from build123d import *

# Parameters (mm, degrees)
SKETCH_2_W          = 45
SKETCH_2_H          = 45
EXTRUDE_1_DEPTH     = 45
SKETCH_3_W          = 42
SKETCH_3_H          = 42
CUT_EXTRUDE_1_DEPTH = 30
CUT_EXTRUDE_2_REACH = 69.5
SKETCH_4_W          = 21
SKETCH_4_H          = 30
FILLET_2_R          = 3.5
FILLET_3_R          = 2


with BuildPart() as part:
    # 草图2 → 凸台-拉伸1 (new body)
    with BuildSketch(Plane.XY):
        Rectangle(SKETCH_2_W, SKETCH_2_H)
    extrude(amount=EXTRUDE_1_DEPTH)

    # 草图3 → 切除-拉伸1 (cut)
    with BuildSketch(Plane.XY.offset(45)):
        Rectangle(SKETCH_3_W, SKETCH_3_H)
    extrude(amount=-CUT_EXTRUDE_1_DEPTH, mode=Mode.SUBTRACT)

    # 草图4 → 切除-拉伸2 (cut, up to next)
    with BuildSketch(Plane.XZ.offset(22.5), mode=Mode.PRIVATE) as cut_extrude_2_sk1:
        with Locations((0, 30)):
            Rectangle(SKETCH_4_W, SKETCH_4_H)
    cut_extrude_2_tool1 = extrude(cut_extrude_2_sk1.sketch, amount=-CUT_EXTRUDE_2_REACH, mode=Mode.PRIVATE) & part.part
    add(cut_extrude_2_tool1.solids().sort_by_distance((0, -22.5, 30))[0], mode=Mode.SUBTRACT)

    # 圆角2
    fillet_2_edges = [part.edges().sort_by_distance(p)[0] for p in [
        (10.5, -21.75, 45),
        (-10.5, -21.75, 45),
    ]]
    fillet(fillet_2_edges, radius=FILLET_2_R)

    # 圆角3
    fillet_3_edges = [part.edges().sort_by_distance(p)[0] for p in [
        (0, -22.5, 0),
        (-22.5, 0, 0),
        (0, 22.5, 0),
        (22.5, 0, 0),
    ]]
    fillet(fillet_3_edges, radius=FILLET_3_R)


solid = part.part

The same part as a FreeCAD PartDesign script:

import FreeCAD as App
import Part
import Sketcher
from FreeCAD import Vector
Q = App.Units.Quantity


def edges_at(feature, points):
    """Names of the edges that pass closest to the given points."""
    edges = feature.Shape.Edges
    near = lambda p: min(range(len(edges)), key=lambda i: edges[i].distToShape(Part.Vertex(*p))[0])
    return sorted({f"Edge{near(p) + 1}" for p in points})

doc = App.newDocument("Part")
params = doc.addObject("Spreadsheet::Sheet", "Params")
for row, (alias, value) in enumerate([
    ("sketch1_width", "45 mm"),
    ("pad1_length", "45 mm"),
    ("sketch2_width", "42 mm"),
    ("pocket1_length", "30 mm"),
    ("sketch3_width", "21 mm"),
    ("sketch3_height", "30 mm"),
    ("fillet_radius", "3.5 mm"),
    ("fillet2_radius", "2 mm"),
], start=1):
    params.set(f"A{row}", alias)
    params.set(f"B{row}", "=" + value)
    params.setAlias(f"B{row}", alias)

body = doc.addObject("PartDesign::Body", "Body")

# Sketch on XY plane
sketch1 = doc.addObject("Sketcher::SketchObject", "Sketch")
body.addObject(sketch1)
sketch1.AttachmentSupport = (doc.XY_Plane, [""])
sketch1.MapMode = "FlatFace"
sketch1.addGeometry([
    Part.LineSegment(Vector(-22, 22, 0), Vector(-22, -22, 0)),
    Part.LineSegment(Vector(-22, -22, 0), Vector(22, -22, 0)),
    Part.LineSegment(Vector(22, -22, 0), Vector(22, 22, 0)),
    Part.LineSegment(Vector(22, 22, 0), Vector(-22, 22, 0)),
], False)
sketch1.addConstraint([
    Sketcher.Constraint("Coincident", 0, 2, 1, 1),
    Sketcher.Constraint("Coincident", 1, 2, 2, 1),
    Sketcher.Constraint("Coincident", 2, 2, 3, 1),
    Sketcher.Constraint("Coincident", 3, 2, 0, 1),
    Sketcher.Constraint("Vertical", 0),
    Sketcher.Constraint("Horizontal", 1),
    Sketcher.Constraint("Vertical", 2),
    Sketcher.Constraint("Horizontal", 3),
    Sketcher.Constraint("Symmetric", 0, 2, 2, 2, -1, 1),
    Sketcher.Constraint("Equal", 3, 0),
    Sketcher.Constraint("DistanceX", 1, 1, 1, 2, Q("45 mm")),
])
sketch1.setExpression("Constraints[10]", "Params.sketch1_width")
pad1 = doc.addObject("PartDesign::Pad", "Pad")
body.addObject(pad1)
pad1.Profile = sketch1
pad1.setExpression("Length", "Params.pad1_length")

# Sketch on XY plane
sketch2 = doc.addObject("Sketcher::SketchObject", "Sketch001")
body.addObject(sketch2)
sketch2.AttachmentSupport = (doc.XY_Plane, [""])
sketch2.MapMode = "FlatFace"
sketch2.AttachmentOffset = App.Placement(Vector(0, 0, 45), App.Rotation())
sketch2.addGeometry([
    Part.LineSegment(Vector(-21, 21, 0), Vector(-21, -21, 0)),
    Part.LineSegment(Vector(-21, -21, 0), Vector(21, -21, 0)),
    Part.LineSegment(Vector(21, -21, 0), Vector(21, 21, 0)),
    Part.LineSegment(Vector(21, 21, 0), Vector(-21, 21, 0)),
], False)
sketch2.addConstraint([
    Sketcher.Constraint("Coincident", 0, 2, 1, 1),
    Sketcher.Constraint("Coincident", 1, 2, 2, 1),
    Sketcher.Constraint("Coincident", 2, 2, 3, 1),
    Sketcher.Constraint("Coincident", 3, 2, 0, 1),
    Sketcher.Constraint("Vertical", 0),
    Sketcher.Constraint("Horizontal", 1),
    Sketcher.Constraint("Vertical", 2),
    Sketcher.Constraint("Horizontal", 3),
    Sketcher.Constraint("Symmetric", 0, 2, 2, 2, -1, 1),
    Sketcher.Constraint("Equal", 3, 0),
    Sketcher.Constraint("DistanceX", 1, 1, 1, 2, Q("42 mm")),
])
sketch2.setExpression("Constraints[10]", "Params.sketch2_width")
pocket1 = doc.addObject("PartDesign::Pocket", "Pocket")
body.addObject(pocket1)
pocket1.Profile = sketch2
pocket1.setExpression("Length", "Params.pocket1_length")

# Sketch on XZ plane
sketch3 = doc.addObject("Sketcher::SketchObject", "Sketch002")
body.addObject(sketch3)
sketch3.AttachmentSupport = (doc.XZ_Plane, [""])
sketch3.MapMode = "FlatFace"
sketch3.AttachmentOffset = App.Placement(Vector(0, 0, 22.5), App.Rotation())
sketch3.addGeometry([
    Part.LineSegment(Vector(-10, 45, 0), Vector(-10, 15, 0)),
    Part.LineSegment(Vector(-10, 15, 0), Vector(10, 15, 0)),
    Part.LineSegment(Vector(10, 15, 0), Vector(10, 45, 0)),
    Part.LineSegment(Vector(10, 45, 0), Vector(-10, 45, 0)),
], False)
sketch3.addConstraint([
    Sketcher.Constraint("Coincident", 0, 2, 1, 1),
    Sketcher.Constraint("Coincident", 1, 2, 2, 1),
    Sketcher.Constraint("Coincident", 2, 2, 3, 1),
    Sketcher.Constraint("Coincident", 3, 2, 0, 1),
    Sketcher.Constraint("Vertical", 0),
    Sketcher.Constraint("Horizontal", 1),
    Sketcher.Constraint("Vertical", 2),
    Sketcher.Constraint("Horizontal", 3),
    Sketcher.Constraint("DistanceX", 1, 1, 1, 2, Q("21 mm")),
    Sketcher.Constraint("DistanceY", 0, 2, 0, 1, Q("30 mm")),
    Sketcher.Constraint("DistanceY", -1, 1, 0, 2, Q("15 mm")),
    Sketcher.Constraint("DistanceX", 0, 2, -1, 1, Q("10.5 mm")),
])
sketch3.setExpression("Constraints[8]", "Params.sketch3_width")
sketch3.setExpression("Constraints[9]", "Params.sketch3_height")
pocket2 = doc.addObject("PartDesign::Pocket", "Pocket001")
body.addObject(pocket2)
pocket2.Profile = sketch3
pocket2.Type = "UpToFirst"
doc.recompute()

fillet = doc.addObject("PartDesign::Fillet", "Fillet")
body.addObject(fillet)
fillet.Base = (pocket2, edges_at(pocket2, [(10.5, -21.75, 45), (-10.5, -21.75, 45)]))
fillet.setExpression("Radius", "Params.fillet_radius")
doc.recompute()

fillet2 = doc.addObject("PartDesign::Fillet", "Fillet001")
body.addObject(fillet2)
fillet2.Base = (fillet, edges_at(fillet, [
    (0, -22.5, 0),
    (-22.5, 0, 0),
    (0, 22.5, 0),
    (22.5, 0, 0),
]))
fillet2.setExpression("Radius", "Params.fillet2_radius")

doc.recompute()
